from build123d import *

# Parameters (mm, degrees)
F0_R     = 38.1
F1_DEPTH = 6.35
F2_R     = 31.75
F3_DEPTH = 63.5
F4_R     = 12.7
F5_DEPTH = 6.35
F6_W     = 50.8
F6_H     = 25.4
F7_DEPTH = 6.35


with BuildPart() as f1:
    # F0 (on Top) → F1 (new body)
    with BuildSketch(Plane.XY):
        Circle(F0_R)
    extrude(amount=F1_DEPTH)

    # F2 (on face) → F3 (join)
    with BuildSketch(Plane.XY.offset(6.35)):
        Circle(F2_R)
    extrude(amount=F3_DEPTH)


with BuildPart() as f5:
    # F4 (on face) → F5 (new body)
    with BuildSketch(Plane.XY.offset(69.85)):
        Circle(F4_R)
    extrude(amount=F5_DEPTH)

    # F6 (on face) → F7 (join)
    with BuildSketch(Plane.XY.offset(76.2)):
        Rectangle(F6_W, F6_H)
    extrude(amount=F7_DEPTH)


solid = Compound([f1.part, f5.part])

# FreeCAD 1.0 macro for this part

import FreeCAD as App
import Part
import Sketcher

V = App.Vector
Q = App.Units.Quantity


def add_polygon(sketch, points):
    """Adds a closed chain of lines whose ends are joined by coincident constraints."""
    first, n = sketch.GeometryCount, len(points)
    for a, b in zip(points, points[1:] + points[:1]):
        sketch.addGeometry(Part.LineSegment(App.Vector(*a, 0), App.Vector(*b, 0)), False)
    for i in range(n):
        sketch.addConstraint(Sketcher.Constraint("Coincident", first + i, 2, first + (i + 1) % n, 1))

doc = App.newDocument("Part")
body = doc.addObject("PartDesign::Body", "Body")

# Sketch on XY plane
sketch1 = doc.addObject("Sketcher::SketchObject", "Sketch")
body.addObject(sketch1)
sketch1.AttachmentSupport = (doc.XY_Plane, [""])
sketch1.MapMode = "FlatFace"
sketch1.addGeometry(Part.Circle(V(0, 0, 0), V(0, 0, 1), 38), False)
sketch1.addConstraint([
    Sketcher.Constraint("Coincident", 0, 3, -1, 1),
    Sketcher.Constraint("Diameter", 0, Q("3 in")),
])
pad1 = doc.addObject("PartDesign::Pad", "Pad")
body.addObject(pad1)
pad1.Profile = sketch1
pad1.Length = Q("0.25 in")

# Sketch on XY plane
sketch2 = doc.addObject("Sketcher::SketchObject", "Sketch001")
body.addObject(sketch2)
sketch2.AttachmentSupport = (doc.XY_Plane, [""])
sketch2.MapMode = "FlatFace"
sketch2.AttachmentOffset = App.Placement(V(0, 0, 0.25 * 25.4), App.Rotation())
sketch2.addGeometry(Part.Circle(V(0, 0, 0), V(0, 0, 1), 32), False)
sketch2.addConstraint([
    Sketcher.Constraint("Coincident", 0, 3, -1, 1),
    Sketcher.Constraint("Diameter", 0, Q("2.5 in")),
])
pad2 = doc.addObject("PartDesign::Pad", "Pad001")
body.addObject(pad2)
pad2.Profile = sketch2
pad2.Length = Q("2.5 in")
body2 = doc.addObject("PartDesign::Body", "Body001")

# Sketch on XY plane
sketch3 = doc.addObject("Sketcher::SketchObject", "Sketch002")
body2.addObject(sketch3)
sketch3.AttachmentSupport = (doc.getObject("XY_Plane001"), [""])
sketch3.MapMode = "FlatFace"
sketch3.AttachmentOffset = App.Placement(V(0, 0, 2.75 * 25.4), App.Rotation())
sketch3.addGeometry(Part.Circle(V(0, 0, 0), V(0, 0, 1), 13), False)
sketch3.addConstraint([
    Sketcher.Constraint("Coincident", 0, 3, -1, 1),
    Sketcher.Constraint("Diameter", 0, Q("1 in")),
])
pad3 = doc.addObject("PartDesign::Pad", "Pad002")
body2.addObject(pad3)
pad3.Profile = sketch3
pad3.Length = Q("0.25 in")

# Sketch on XY plane
sketch4 = doc.addObject("Sketcher::SketchObject", "Sketch003")
body2.addObject(sketch4)
sketch4.AttachmentSupport = (doc.getObject("XY_Plane001"), [""])
sketch4.MapMode = "FlatFace"
sketch4.AttachmentOffset = App.Placement(V(0, 0, 3 * 25.4), App.Rotation())
add_polygon(sketch4, [(-25, 13), (-25, -13), (25, -13), (25, 13)])  # lines 0-3
sketch4.addConstraint([
    Sketcher.Constraint("Vertical", 0),
    Sketcher.Constraint("Horizontal", 1),
    Sketcher.Constraint("Vertical", 2),
    Sketcher.Constraint("Horizontal", 3),
    Sketcher.Constraint("Symmetric", 0, 2, 2, 2, -1, 1),
    Sketcher.Constraint("DistanceX", 1, 1, 1, 2, Q("2 in")),
    Sketcher.Constraint("DistanceY", 0, 2, 0, 1, Q("1 in")),
])
pad4 = doc.addObject("PartDesign::Pad", "Pad003")
body2.addObject(pad4)
pad4.Profile = sketch4
pad4.Length = Q("0.25 in")

doc.recompute()
